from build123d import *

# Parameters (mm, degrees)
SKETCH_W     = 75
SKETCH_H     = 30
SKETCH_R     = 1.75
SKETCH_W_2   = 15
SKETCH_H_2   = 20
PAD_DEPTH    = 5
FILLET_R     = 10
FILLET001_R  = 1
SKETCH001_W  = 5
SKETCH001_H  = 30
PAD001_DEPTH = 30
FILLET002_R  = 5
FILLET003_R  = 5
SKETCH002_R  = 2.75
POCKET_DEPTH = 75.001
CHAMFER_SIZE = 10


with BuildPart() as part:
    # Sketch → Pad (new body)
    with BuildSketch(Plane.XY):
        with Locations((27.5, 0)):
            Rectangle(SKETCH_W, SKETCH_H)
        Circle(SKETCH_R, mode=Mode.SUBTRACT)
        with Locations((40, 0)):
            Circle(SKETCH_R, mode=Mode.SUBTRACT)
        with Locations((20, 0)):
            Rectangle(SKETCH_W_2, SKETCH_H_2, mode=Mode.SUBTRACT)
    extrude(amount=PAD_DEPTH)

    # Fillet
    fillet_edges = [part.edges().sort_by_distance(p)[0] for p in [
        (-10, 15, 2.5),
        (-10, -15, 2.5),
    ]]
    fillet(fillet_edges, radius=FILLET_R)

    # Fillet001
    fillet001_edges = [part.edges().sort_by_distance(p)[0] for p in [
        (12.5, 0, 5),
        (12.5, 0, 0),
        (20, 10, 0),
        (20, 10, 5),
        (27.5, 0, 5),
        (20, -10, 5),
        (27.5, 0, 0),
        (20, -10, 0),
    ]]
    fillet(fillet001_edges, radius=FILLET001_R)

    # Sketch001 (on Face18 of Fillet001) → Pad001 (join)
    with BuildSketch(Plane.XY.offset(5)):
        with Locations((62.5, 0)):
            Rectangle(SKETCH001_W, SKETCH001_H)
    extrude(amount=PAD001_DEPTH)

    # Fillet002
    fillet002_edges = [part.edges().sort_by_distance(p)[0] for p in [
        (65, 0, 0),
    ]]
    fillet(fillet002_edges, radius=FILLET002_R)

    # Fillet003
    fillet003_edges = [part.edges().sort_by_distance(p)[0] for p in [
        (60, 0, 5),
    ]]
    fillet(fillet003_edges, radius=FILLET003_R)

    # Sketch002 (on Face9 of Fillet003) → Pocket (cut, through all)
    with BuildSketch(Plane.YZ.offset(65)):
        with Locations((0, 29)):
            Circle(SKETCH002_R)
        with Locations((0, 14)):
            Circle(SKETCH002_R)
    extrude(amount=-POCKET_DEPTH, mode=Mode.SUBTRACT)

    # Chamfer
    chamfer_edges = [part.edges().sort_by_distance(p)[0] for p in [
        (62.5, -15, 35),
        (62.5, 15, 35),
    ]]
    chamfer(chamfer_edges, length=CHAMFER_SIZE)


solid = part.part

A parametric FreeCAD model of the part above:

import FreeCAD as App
import Part
import Sketcher
from FreeCAD import Vector
Q = App.Units.Quantity


def edges_at(feature, points):
    """Names of the edges that pass closest to the given points."""
    edges = feature.Shape.Edges
    near = lambda p: min(range(len(edges)), key=lambda i: edges[i].distToShape(Part.Vertex(*p))[0])
    return sorted({f"Edge{near(p) + 1}" for p in points})

doc = App.newDocument("Part")
body = doc.addObject("PartDesign::Body", "Body")

# Sketch on XY plane
sketch1 = body.newObject("Sketcher::SketchObject", "Sketch")
sketch1.AttachmentSupport = (doc.getObject("XY_Plane"), [""])
sketch1.MapMode = "FlatFace"
sketch1.addGeometry(Part.LineSegment(Vector(-10, 15, 0), Vector(-10, -15, 0)), False)
sketch1.addGeometry(Part.LineSegment(Vector(-10, -15, 0), Vector(65, -15, 0)), False)
sketch1.addGeometry(Part.LineSegment(Vector(65, -15, 0), Vector(65, 15, 0)), False)
sketch1.addGeometry(Part.LineSegment(Vector(65, 15, 0), Vector(-10, 15, 0)), False)
sketch1.addGeometry(Part.Circle(Vector(0, 0, 0), Vector(0, 0, 1), 1.8), False)
sketch1.addGeometry(Part.LineSegment(Vector(27.5, -10, 0), Vector(12.5, -10, 0)), False)
sketch1.addGeometry(Part.LineSegment(Vector(12.5, -10, 0), Vector(12.5, 10, 0)), False)
sketch1.addGeometry(Part.LineSegment(Vector(12.5, 10, 0), Vector(27.5, 10, 0)), False)
sketch1.addGeometry(Part.LineSegment(Vector(27.5, 10, 0), Vector(27.5, -10, 0)), False)
sketch1.addGeometry(Part.Circle(Vector(40, 0, 0), Vector(0, 0, 1), 1.8), False)
sketch1.addConstraint(Sketcher.Constraint("Coincident", 0, 2, 1, 1))
sketch1.addConstraint(Sketcher.Constraint("Coincident", 1, 2, 2, 1))
sketch1.addConstraint(Sketcher.Constraint("Coincident", 2, 2, 3, 1))
sketch1.addConstraint(Sketcher.Constraint("Coincident", 3, 2, 0, 1))
sketch1.addConstraint(Sketcher.Constraint("Coincident", 5, 2, 6, 1))
sketch1.addConstraint(Sketcher.Constraint("Coincident", 6, 2, 7, 1))
sketch1.addConstraint(Sketcher.Constraint("Coincident", 7, 2, 8, 1))
sketch1.addConstraint(Sketcher.Constraint("Coincident", 8, 2, 5, 1))
sketch1.addConstraint(Sketcher.Constraint("Vertical", 0))
sketch1.addConstraint(Sketcher.Constraint("Horizontal", 1))
sketch1.addConstraint(Sketcher.Constraint("Vertical", 2))
sketch1.addConstraint(Sketcher.Constraint("Horizontal", 3))
sketch1.addConstraint(Sketcher.Constraint("Horizontal", 5))
sketch1.addConstraint(Sketcher.Constraint("Vertical", 6))
sketch1.addConstraint(Sketcher.Constraint("Horizontal", 7))
sketch1.addConstraint(Sketcher.Constraint("Vertical", 8))
sketch1.addConstraint(Sketcher.Constraint("Coincident", 4, 3, -1, 1))
sketch1.addConstraint(Sketcher.Constraint("Equal", 4, 9))
sketch1.addConstraint(Sketcher.Constraint("PointOnObject", 9, 3, -1))
sketch1.addConstraint(Sketcher.Constraint("Diameter", 4, Q("3.5 mm")))
sketch1.addConstraint(Sketcher.Constraint("DistanceX", 1, 1, 1, 2, Q("75 mm")))
sketch1.addConstraint(Sketcher.Constraint("DistanceX", 5, 2, 5, 1, Q("15 mm")))
sketch1.addConstraint(Sketcher.Constraint("DistanceY", 0, 2, 0, 1, Q("30 mm")))
sketch1.addConstraint(Sketcher.Constraint("DistanceY", 6, 1, 6, 2, Q("20 mm")))
sketch1.addConstraint(Sketcher.Constraint("DistanceX", -1, 1, 9, 3, Q("40 mm")))
sketch1.addConstraint(Sketcher.Constraint("DistanceX", 0, 2, -1, 1, Q("10 mm")))
sketch1.addConstraint(Sketcher.Constraint("DistanceY", 0, 2, -1, 1, Q("15 mm")))
sketch1.addConstraint(Sketcher.Constraint("DistanceY", 5, 2, -1, 1, Q("10 mm")))
sketch1.addConstraint(Sketcher.Constraint("DistanceX", -1, 1, 5, 2, Q("12.5 mm")))
pad1 = body.newObject("PartDesign::Pad", "Pad")
pad1.Profile = sketch1
pad1.Length = 5
doc.recompute()

fillet = body.newObject("PartDesign::Fillet", "Fillet")
fillet.Base = (pad1, edges_at(pad1, [(-10, 15, 2.5), (-10, -15, 2.5)]))
fillet.Radius = 10
doc.recompute()

fillet2 = body.newObject("PartDesign::Fillet", "Fillet001")
fillet2.Base = (fillet, edges_at(fillet, [
    (12.5, 0, 5),
    (12.5, 0, 0),
    (20, 10, 0),
    (20, 10, 5),
    (27.5, 0, 5),
    (20, -10, 5),
    (27.5, 0, 0),
    (20, -10, 0),
]))
fillet2.Radius = 1

# Sketch on XY plane
sketch2 = body.newObject("Sketcher::SketchObject", "Sketch001")
sketch2.AttachmentSupport = (doc.getObject("XY_Plane"), [""])
sketch2.MapMode = "FlatFace"
sketch2.AttachmentOffset = App.Placement(Vector(0, 0, 5), App.Rotation())
sketch2.addGeometry(Part.LineSegment(Vector(60, 15, 0), Vector(60, -15, 0)), False)
sketch2.addGeometry(Part.LineSegment(Vector(60, -15, 0), Vector(65, -15, 0)), False)
sketch2.addGeometry(Part.LineSegment(Vector(65, -15, 0), Vector(65, 15, 0)), False)
sketch2.addGeometry(Part.LineSegment(Vector(65, 15, 0), Vector(60, 15, 0)), False)
sketch2.addConstraint(Sketcher.Constraint("Coincident", 0, 2, 1, 1))
sketch2.addConstraint(Sketcher.Constraint("Coincident", 1, 2, 2, 1))
sketch2.addConstraint(Sketcher.Constraint("Coincident", 2, 2, 3, 1))
sketch2.addConstraint(Sketcher.Constraint("Coincident", 3, 2, 0, 1))
sketch2.addConstraint(Sketcher.Constraint("Vertical", 0))
sketch2.addConstraint(Sketcher.Constraint("Horizontal", 1))
sketch2.addConstraint(Sketcher.Constraint("Vertical", 2))
sketch2.addConstraint(Sketcher.Constraint("Horizontal", 3))
sketch2.addConstraint(Sketcher.Constraint("DistanceX", 1, 1, 1, 2, Q("5 mm")))
sketch2.addConstraint(Sketcher.Constraint("DistanceY", 0, 2, 0, 1, Q("30 mm")))
sketch2.addConstraint(Sketcher.Constraint("DistanceX", -1, 1, 0, 2, Q("60 mm")))
sketch2.addConstraint(Sketcher.Constraint("DistanceY", 0, 2, -1, 1, Q("15 mm")))
pad2 = body.newObject("PartDesign::Pad", "Pad001")
pad2.Profile = sketch2
pad2.Length = 30
doc.recompute()

fillet3 = body.newObject("PartDesign::Fillet", "Fillet002")
fillet3.Base = (pad2, edges_at(pad2, [(65, 0, 0)]))
fillet3.Radius = 5
doc.recompute()

fillet4 = body.newObject("PartDesign::Fillet", "Fillet003")
fillet4.Base = (fillet3, edges_at(fillet3, [(60, 0, 5)]))
fillet4.Radius = 5

# Sketch on YZ plane
sketch3 = body.newObject("Sketcher::SketchObject", "Sketch002")
sketch3.AttachmentSupport = (doc.getObject("YZ_Plane"), [""])
sketch3.MapMode = "FlatFace"
sketch3.AttachmentOffset = App.Placement(Vector(0, 0, 65), App.Rotation())
sketch3.addGeometry(Part.Circle(Vector(0, 29, 0), Vector(0, 0, 1), 2.8), False)
sketch3.addGeometry(Part.Circle(Vector(0, 14, 0), Vector(0, 0, 1), 2.8), False)
sketch3.addConstraint(Sketcher.Constraint("Equal", 0, 1))
sketch3.addConstraint(Sketcher.Constraint("PointOnObject", 0, 3, -2))
sketch3.addConstraint(Sketcher.Constraint("PointOnObject", 1, 3, -2))
sketch3.addConstraint(Sketcher.Constraint("Diameter", 0, Q("5.5 mm")))
sketch3.addConstraint(Sketcher.Constraint("DistanceY", -1, 1, 0, 3, Q("29 mm")))
sketch3.addConstraint(Sketcher.Constraint("DistanceY", -1, 1, 1, 3, Q("14 mm")))
pocket1 = body.newObject("PartDesign::Pocket", "Pocket")
pocket1.Profile = sketch3
pocket1.Type = "ThroughAll"
doc.recompute()

chamfer = body.newObject("PartDesign::Chamfer", "Chamfer")
chamfer.Base = (pocket1, edges_at(pocket1, [(62.5, -15, 35), (62.5, 15, 35)]))
chamfer.Size = 10

doc.recompute()
